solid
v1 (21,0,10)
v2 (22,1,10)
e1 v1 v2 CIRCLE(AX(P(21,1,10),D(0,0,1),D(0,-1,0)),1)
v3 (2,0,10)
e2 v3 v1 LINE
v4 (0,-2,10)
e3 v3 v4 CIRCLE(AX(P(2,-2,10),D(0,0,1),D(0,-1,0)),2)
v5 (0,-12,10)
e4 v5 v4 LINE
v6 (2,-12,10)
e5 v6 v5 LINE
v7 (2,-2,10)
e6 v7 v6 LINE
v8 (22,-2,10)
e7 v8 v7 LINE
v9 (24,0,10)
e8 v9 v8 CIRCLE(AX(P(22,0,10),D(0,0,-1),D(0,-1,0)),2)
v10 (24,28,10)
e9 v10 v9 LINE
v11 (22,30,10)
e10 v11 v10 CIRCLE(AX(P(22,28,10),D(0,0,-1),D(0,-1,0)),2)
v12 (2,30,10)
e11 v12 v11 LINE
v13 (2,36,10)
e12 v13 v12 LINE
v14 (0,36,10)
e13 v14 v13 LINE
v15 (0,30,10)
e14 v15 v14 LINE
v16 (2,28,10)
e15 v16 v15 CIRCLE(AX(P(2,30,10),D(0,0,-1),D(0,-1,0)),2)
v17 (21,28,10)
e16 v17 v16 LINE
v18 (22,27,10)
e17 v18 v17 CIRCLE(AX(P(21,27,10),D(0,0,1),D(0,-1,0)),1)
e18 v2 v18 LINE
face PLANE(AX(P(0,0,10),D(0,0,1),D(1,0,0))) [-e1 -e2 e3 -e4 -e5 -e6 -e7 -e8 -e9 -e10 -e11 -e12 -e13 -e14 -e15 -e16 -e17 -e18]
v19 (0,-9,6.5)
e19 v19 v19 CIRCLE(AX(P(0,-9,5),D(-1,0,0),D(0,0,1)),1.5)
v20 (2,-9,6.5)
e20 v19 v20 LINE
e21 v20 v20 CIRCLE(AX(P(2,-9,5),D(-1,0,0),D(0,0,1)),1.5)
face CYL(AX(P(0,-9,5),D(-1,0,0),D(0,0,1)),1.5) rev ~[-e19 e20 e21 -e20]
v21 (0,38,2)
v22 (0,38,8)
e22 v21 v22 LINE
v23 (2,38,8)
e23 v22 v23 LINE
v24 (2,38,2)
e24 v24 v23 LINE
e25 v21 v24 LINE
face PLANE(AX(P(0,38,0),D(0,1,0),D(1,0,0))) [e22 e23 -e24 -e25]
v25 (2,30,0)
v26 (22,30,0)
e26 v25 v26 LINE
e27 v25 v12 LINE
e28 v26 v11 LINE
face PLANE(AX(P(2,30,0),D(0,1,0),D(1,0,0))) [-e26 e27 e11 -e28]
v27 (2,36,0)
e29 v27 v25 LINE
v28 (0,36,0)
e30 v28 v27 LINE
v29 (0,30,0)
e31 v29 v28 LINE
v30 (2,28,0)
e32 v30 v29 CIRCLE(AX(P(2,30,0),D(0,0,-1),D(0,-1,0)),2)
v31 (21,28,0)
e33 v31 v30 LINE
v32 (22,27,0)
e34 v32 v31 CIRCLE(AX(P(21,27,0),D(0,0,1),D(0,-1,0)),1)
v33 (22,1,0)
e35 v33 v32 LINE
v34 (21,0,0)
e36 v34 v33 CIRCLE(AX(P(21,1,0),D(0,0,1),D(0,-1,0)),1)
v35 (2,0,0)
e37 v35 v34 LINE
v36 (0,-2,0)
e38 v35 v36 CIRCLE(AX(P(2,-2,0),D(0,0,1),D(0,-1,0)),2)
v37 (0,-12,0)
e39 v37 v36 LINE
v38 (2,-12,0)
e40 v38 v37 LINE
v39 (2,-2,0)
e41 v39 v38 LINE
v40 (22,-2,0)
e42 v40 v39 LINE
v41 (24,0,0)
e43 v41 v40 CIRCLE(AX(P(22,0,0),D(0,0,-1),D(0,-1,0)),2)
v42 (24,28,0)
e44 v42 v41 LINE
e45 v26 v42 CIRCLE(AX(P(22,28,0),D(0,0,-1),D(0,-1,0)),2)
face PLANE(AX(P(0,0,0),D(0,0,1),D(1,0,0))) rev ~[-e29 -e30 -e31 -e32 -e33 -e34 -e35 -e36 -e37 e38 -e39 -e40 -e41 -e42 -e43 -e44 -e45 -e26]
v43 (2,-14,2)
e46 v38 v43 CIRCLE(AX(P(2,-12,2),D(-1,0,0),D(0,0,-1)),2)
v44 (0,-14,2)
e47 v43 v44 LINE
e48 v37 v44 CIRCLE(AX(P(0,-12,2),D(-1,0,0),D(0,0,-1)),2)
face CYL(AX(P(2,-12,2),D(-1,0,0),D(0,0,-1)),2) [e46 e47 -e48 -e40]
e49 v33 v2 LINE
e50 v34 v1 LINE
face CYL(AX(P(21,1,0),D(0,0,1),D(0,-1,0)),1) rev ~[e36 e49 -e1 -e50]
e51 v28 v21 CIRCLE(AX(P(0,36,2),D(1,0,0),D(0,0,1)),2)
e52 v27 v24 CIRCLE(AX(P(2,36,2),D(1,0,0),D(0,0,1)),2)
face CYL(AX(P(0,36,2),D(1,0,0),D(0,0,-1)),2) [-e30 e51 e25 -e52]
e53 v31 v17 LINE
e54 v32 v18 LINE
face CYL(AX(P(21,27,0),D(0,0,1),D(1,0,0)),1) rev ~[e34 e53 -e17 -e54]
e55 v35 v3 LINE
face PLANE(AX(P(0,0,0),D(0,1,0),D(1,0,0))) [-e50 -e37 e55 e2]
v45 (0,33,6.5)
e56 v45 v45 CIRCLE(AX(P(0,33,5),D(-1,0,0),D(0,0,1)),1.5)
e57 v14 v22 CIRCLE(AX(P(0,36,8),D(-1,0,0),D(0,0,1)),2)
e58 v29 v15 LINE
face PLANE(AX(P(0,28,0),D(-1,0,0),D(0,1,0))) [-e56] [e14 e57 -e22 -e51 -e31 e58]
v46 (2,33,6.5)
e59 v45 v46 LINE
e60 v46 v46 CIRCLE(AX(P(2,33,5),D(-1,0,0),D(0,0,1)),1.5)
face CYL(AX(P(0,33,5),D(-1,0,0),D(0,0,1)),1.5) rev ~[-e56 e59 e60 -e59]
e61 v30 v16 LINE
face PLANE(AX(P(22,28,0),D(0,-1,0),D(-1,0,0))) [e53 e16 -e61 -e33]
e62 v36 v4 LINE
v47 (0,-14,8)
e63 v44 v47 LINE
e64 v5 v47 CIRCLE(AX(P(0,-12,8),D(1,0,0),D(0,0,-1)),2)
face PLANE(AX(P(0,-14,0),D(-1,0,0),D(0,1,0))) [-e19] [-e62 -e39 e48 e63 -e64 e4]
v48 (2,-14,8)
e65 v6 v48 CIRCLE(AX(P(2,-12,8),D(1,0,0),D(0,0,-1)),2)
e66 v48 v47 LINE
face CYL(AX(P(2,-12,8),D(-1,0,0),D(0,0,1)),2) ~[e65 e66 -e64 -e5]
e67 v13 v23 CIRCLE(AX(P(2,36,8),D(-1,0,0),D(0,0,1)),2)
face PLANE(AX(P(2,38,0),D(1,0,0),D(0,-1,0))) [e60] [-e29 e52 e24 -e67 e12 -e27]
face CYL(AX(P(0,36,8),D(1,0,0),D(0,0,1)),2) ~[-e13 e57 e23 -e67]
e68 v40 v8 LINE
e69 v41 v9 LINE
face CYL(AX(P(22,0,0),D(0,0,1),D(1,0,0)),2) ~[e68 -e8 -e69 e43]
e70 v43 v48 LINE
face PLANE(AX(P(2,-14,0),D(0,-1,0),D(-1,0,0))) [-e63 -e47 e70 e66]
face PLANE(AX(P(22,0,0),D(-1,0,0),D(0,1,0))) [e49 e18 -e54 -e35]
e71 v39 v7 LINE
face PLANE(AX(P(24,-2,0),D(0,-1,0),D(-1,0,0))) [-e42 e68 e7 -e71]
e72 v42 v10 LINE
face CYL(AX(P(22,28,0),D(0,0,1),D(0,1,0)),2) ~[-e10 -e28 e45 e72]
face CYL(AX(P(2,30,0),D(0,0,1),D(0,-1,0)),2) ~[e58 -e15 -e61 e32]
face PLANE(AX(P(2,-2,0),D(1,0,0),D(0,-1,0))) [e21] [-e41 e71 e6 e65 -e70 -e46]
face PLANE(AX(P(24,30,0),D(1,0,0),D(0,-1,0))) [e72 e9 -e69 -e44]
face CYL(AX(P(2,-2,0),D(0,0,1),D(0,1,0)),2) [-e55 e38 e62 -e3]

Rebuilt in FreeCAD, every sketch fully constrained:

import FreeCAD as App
import Part
import Sketcher
from FreeCAD import Vector
Q = App.Units.Quantity


def edges_at(feature, points):
    """Names of the edges that pass closest to the given points."""
    edges = feature.Shape.Edges
    near = lambda p: min(range(len(edges)), key=lambda i: edges[i].distToShape(Part.Vertex(*p))[0])
    return sorted({f"Edge{near(p) + 1}" for p in points})

doc = App.newDocument("Part")
body = doc.addObject("PartDesign::Body", "Body")

sketch1 = body.newObject("Sketcher::SketchObject", "Sketch")
sketch1.AttachmentSupport = (doc.getObject("XY_Plane"), [""])
sketch1.MapMode = "FlatFace"
sketch1.addGeometry([
    Part.LineSegment(Vector(22, 0, 0), Vector(0, 0, 0)),
    Part.LineSegment(Vector(0, 0, 0), Vector(0, -14, 0)),
    Part.LineSegment(Vector(0, -14, 0), Vector(2, -14, 0)),
    Part.LineSegment(Vector(2, -14, 0), Vector(2, -2, 0)),
    Part.LineSegment(Vector(2, -2, 0), Vector(24, -2, 0)),
    Part.LineSegment(Vector(24, -2, 0), Vector(24, 30, 0)),
    Part.LineSegment(Vector(24, 30, 0), Vector(2, 30, 0)),
    Part.LineSegment(Vector(2, 30, 0), Vector(2, 38, 0)),
    Part.LineSegment(Vector(2, 38, 0), Vector(0, 38, 0)),
    Part.LineSegment(Vector(0, 38, 0), Vector(0, 28, 0)),
    Part.LineSegment(Vector(0, 28, 0), Vector(22, 28, 0)),
    Part.LineSegment(Vector(22, 28, 0), Vector(22, 0, 0)),
], False)
sketch1.addConstraint([
    Sketcher.Constraint("Coincident", 0, 2, 1, 1),
    Sketcher.Constraint("Coincident", 1, 2, 2, 1),
    Sketcher.Constraint("Coincident", 2, 2, 3, 1),
    Sketcher.Constraint("Coincident", 3, 2, 4, 1),
    Sketcher.Constraint("Coincident", 4, 2, 5, 1),
    Sketcher.Constraint("Coincident", 5, 2, 6, 1),
    Sketcher.Constraint("Coincident", 6, 2, 7, 1),
    Sketcher.Constraint("Coincident", 7, 2, 8, 1),
    Sketcher.Constraint("Coincident", 8, 2, 9, 1),
    Sketcher.Constraint("Coincident", 9, 2, 10, 1),
    Sketcher.Constraint("Coincident", 10, 2, 11, 1),
    Sketcher.Constraint("Coincident", 11, 2, 0, 1),
    Sketcher.Constraint("Horizontal", 0),
    Sketcher.Constraint("Vertical", 1),
    Sketcher.Constraint("Horizontal", 2),
    Sketcher.Constraint("Vertical", 3),
    Sketcher.Constraint("Horizontal", 4),
    Sketcher.Constraint("Vertical", 5),
    Sketcher.Constraint("Horizontal", 6),
    Sketcher.Constraint("Vertical", 7),
    Sketcher.Constraint("Horizontal", 8),
    Sketcher.Constraint("Vertical", 9),
    Sketcher.Constraint("Horizontal", 10),
    Sketcher.Constraint("Vertical", 11),
    Sketcher.Constraint("Coincident", 0, 2, -1, 1),
    Sketcher.Constraint("PointOnObject", 8, 2, -2),
    Sketcher.Constraint("Vertical", 3, 2, 6, 2),
    Sketcher.Constraint("Equal", 0, 4),
    Sketcher.Constraint("DistanceX", 2, 1, 2, 2, Q("2 mm")),
    Sketcher.Constraint("DistanceY", 1, 2, 1, 1, Q("14 mm")),
    Sketcher.Constraint("DistanceY", 9, 2, 9, 1, Q("10 mm")),
    Sketcher.Constraint("DistanceY", 11, 2, 11, 1, Q("28 mm")),
    Sketcher.Constraint("DistanceY", 3, 2, -1, 1, Q("2 mm")),
    Sketcher.Constraint("DistanceY", 9, 2, 6, 2, Q("2 mm")),
    Sketcher.Constraint("DistanceX", 6, 2, 10, 2, Q("20 mm")),
])
pad1 = body.newObject("PartDesign::Pad", "Pad")
pad1.Profile = sketch1
pad1.Length = 10
doc.recompute()

fillet = body.newObject("PartDesign::Fillet", "Fillet")
fillet.Base = (pad1, edges_at(pad1, [
    (0, 28, 5),
    (0, 0, 5),
    (24, 30, 5),
    (24, -2, 5),
]))
fillet.Radius = 2
doc.recompute()

fillet2 = body.newObject("PartDesign::Fillet", "Fillet001")
fillet2.Base = (fillet, edges_at(fillet, [
    (1, -14, 10),
    (1, -14, 0),
    (1, 38, 10),
    (1, 38, 0),
]))
fillet2.Radius = 2

sketch2 = body.newObject("Sketcher::SketchObject", "Sketch001")
sketch2.AttachmentSupport = (doc.getObject("YZ_Plane"), [""])
sketch2.MapMode = "FlatFace"
sketch2.addGeometry([
    Part.Circle(Vector(33, 5, 0), Vector(0, 0, 1), 1.5),
    Part.Circle(Vector(-9, 5, 0), Vector(0, 0, 1), 1.5),
], False)
sketch2.addConstraint([
    Sketcher.Constraint("Equal", 0, 1),
    Sketcher.Constraint("Horizontal", 0, 3, 1, 3),
    Sketcher.Constraint("Diameter", 0, Q("3 mm")),
    Sketcher.Constraint("DistanceX", -1, 1, 0, 3, Q("33 mm")),
    Sketcher.Constraint("DistanceY", -1, 1, 0, 3, Q("5 mm")),
    Sketcher.Constraint("DistanceX", 1, 3, -1, 1, Q("9 mm")),
])
pocket1 = body.newObject("PartDesign::Pocket", "Pocket")
pocket1.Profile = sketch2
pocket1.Type = "UpToFirst"
pocket1.Reversed = True
doc.recompute()

fillet3 = body.newObject("PartDesign::Fillet", "Fillet002")
fillet3.Base = (pocket1, edges_at(pocket1, [(22, 28, 5), (22, 0, 5)]))
fillet3.Radius = 1

doc.recompute()
